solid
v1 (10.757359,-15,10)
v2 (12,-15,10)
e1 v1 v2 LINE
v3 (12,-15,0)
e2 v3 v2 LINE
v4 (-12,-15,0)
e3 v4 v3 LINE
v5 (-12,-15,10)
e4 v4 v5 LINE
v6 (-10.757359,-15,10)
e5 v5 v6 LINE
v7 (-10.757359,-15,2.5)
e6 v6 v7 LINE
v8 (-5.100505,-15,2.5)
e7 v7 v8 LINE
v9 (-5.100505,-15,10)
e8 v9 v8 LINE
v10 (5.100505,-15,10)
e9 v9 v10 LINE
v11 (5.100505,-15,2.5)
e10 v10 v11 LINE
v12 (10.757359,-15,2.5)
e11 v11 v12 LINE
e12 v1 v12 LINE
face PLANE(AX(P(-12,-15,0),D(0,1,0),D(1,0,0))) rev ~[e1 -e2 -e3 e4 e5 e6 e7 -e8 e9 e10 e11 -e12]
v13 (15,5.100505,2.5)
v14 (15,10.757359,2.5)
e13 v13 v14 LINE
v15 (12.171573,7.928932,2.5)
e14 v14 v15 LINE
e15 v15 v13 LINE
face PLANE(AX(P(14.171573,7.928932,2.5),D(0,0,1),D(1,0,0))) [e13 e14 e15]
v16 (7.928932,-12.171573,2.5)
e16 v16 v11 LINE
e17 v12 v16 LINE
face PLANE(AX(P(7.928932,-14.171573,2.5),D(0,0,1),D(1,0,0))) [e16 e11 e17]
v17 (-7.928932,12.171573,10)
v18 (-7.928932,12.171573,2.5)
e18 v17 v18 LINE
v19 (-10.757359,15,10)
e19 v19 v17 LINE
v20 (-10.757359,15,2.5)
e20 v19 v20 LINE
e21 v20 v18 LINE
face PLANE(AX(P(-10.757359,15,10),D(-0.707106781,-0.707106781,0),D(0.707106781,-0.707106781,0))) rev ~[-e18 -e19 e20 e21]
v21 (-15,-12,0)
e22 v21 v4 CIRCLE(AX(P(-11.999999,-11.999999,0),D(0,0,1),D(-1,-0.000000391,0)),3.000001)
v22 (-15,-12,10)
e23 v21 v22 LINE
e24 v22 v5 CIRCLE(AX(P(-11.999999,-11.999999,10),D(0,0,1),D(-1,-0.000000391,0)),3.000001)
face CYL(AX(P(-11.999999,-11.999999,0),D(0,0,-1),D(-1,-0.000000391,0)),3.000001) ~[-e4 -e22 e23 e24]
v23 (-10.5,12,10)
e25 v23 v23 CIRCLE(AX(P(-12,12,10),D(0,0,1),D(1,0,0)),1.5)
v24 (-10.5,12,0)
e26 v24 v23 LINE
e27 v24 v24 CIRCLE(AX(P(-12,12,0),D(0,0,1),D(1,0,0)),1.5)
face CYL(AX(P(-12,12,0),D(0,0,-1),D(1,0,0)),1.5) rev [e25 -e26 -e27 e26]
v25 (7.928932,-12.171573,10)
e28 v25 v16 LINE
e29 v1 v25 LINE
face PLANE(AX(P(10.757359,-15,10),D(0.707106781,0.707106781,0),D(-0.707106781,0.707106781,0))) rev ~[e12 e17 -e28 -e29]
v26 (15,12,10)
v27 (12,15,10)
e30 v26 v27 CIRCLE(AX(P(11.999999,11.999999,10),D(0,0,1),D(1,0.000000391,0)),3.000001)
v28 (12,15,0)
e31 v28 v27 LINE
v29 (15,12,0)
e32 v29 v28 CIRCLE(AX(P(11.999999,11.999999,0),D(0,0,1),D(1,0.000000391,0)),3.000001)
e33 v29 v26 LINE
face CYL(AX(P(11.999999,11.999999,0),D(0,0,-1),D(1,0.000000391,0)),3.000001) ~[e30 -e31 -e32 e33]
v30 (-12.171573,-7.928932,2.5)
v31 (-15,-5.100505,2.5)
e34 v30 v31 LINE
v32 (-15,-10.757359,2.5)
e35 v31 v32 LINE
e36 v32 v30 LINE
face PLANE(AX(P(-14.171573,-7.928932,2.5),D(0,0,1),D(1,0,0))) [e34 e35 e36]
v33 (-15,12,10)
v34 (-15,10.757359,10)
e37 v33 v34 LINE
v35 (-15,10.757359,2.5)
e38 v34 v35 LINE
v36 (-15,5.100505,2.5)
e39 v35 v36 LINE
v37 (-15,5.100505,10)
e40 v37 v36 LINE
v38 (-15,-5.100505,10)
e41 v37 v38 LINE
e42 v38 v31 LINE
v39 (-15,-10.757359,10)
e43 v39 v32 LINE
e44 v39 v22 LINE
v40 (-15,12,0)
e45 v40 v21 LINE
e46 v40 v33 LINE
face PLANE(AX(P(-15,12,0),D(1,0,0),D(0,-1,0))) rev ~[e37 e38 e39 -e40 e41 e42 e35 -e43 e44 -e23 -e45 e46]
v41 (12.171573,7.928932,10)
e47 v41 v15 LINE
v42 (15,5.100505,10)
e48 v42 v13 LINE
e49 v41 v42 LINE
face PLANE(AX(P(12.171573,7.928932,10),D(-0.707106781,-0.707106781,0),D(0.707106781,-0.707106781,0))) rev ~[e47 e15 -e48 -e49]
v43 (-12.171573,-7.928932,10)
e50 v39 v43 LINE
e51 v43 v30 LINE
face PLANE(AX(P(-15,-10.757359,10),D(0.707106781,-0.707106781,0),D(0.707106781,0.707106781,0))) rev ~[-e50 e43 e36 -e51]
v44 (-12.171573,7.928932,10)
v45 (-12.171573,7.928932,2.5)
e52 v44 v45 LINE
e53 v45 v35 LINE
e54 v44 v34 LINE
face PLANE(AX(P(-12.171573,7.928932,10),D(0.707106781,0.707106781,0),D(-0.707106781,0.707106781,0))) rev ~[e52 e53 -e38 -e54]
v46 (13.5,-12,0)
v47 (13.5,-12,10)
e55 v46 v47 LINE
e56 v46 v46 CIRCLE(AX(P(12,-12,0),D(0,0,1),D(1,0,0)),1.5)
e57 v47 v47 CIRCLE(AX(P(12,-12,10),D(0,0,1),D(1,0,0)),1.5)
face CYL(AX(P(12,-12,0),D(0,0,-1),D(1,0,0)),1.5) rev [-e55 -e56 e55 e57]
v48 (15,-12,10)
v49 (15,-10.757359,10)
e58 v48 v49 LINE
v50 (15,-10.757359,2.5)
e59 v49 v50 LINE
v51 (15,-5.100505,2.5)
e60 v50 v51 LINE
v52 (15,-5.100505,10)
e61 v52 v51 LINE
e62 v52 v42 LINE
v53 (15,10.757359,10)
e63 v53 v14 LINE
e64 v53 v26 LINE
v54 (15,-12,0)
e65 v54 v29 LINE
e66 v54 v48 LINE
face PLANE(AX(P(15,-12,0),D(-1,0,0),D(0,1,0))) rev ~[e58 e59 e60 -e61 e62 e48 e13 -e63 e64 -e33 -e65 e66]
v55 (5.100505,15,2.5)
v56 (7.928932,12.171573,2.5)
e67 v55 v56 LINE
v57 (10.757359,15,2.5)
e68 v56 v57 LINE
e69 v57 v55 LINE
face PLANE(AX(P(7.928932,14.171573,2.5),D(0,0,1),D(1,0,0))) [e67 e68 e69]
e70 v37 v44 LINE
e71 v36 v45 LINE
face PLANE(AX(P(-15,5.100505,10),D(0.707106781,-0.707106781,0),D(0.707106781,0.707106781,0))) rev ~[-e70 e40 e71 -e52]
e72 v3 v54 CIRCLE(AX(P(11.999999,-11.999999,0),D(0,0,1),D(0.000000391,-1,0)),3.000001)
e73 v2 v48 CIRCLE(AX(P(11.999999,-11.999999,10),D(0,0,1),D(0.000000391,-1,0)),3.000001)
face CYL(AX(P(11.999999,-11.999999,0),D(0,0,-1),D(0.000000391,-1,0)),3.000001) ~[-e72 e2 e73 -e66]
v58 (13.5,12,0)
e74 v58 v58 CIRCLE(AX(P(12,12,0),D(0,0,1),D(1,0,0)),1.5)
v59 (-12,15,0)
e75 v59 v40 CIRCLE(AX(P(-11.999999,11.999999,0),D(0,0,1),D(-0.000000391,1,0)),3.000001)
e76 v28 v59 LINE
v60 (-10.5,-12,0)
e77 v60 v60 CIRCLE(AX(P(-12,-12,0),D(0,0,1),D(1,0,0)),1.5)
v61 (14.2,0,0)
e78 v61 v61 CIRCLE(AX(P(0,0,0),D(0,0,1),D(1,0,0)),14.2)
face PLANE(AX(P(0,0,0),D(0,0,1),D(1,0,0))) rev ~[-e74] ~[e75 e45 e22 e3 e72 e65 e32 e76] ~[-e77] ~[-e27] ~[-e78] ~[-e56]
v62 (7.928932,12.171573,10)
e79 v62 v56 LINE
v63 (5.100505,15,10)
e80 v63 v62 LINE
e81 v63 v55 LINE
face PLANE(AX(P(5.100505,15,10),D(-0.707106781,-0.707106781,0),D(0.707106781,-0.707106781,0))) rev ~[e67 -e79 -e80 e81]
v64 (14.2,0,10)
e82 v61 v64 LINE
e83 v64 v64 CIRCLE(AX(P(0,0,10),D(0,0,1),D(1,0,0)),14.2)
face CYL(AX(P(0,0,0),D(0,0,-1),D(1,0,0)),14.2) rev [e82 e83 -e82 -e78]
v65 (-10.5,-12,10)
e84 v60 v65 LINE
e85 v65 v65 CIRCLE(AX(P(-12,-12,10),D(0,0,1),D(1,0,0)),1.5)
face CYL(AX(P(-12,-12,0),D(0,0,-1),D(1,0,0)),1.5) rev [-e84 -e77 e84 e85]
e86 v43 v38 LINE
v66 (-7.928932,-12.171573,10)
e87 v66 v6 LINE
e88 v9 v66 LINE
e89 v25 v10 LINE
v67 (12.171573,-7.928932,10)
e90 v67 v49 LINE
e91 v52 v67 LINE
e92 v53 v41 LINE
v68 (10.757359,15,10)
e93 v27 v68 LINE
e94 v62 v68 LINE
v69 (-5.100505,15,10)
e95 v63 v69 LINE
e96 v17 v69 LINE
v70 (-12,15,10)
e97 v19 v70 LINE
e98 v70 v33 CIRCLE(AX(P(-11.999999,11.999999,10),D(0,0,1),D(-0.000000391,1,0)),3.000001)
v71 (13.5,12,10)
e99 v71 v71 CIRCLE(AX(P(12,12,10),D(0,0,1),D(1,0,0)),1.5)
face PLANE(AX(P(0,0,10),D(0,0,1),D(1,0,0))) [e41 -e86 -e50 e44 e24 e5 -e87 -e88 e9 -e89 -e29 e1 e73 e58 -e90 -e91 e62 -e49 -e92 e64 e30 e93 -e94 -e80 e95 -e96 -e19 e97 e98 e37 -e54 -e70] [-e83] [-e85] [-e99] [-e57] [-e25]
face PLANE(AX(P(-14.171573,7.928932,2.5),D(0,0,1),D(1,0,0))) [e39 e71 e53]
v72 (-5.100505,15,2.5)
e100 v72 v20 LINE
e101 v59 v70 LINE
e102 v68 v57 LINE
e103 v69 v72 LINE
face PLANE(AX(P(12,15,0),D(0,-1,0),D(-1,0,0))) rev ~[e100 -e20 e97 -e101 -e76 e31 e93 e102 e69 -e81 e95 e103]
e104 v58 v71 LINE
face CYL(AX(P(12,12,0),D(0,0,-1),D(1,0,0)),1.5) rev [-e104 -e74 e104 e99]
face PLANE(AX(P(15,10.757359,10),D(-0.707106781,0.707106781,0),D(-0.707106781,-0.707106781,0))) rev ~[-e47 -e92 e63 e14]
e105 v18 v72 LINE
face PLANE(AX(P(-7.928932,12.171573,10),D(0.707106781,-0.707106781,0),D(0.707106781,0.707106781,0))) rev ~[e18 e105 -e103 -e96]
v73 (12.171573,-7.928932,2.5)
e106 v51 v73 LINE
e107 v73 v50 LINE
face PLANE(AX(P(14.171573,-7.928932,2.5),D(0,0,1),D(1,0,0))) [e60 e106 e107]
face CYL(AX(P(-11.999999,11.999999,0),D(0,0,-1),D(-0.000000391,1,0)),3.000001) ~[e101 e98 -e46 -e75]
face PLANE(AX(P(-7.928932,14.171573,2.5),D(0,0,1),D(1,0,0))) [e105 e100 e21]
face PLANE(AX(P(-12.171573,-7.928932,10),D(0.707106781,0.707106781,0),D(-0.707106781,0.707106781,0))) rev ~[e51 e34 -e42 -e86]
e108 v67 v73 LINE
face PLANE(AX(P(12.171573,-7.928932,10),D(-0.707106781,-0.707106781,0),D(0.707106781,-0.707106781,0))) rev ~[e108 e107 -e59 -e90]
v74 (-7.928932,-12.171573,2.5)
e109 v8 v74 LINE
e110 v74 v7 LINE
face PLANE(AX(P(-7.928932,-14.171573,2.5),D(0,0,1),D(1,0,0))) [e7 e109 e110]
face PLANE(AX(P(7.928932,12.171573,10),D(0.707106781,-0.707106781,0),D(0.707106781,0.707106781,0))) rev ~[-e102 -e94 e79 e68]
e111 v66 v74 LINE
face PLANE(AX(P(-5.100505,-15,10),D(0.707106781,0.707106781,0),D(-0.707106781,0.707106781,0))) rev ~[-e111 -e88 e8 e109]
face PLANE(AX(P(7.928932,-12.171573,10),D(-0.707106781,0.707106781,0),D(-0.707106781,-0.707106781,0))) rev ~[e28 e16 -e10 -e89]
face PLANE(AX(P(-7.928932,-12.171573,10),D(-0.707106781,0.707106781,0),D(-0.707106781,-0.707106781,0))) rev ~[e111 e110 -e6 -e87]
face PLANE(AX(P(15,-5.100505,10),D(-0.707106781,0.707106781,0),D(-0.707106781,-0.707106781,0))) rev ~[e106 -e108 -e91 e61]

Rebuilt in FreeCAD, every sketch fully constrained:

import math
import FreeCAD as App
import Part
import Sketcher

V = App.Vector
Q = App.Units.Quantity

doc = App.newDocument("Part")
body = doc.addObject("PartDesign::Body", "Body")

sketch1 = body.newObject("Sketcher::SketchObject", "Sketch")
sketch1.AttachmentSupport = (doc.getObject("XY_Plane"), [""])
sketch1.MapMode = "FlatFace"
sketch1.addGeometry(Part.LineSegment(V(12, 15, 0), V(-12, 15, 0)), False)
sketch1.addGeometry(Part.ArcOfCircle(Part.Circle(V(-12, 12, 0), V(0, 0, 1), 3), math.radians(90), math.radians(180)), False)
sketch1.addGeometry(Part.LineSegment(V(-15, 12, 0), V(-15, -12, 0)), False)
sketch1.addGeometry(Part.ArcOfCircle(Part.Circle(V(-12, -12, 0), V(0, 0, 1), 3), math.radians(-180), math.radians(-90)), False)
sketch1.addGeometry(Part.LineSegment(V(-12, -15, 0), V(12, -15, 0)), False)
sketch1.addGeometry(Part.ArcOfCircle(Part.Circle(V(12, -12, 0), V(0, 0, 1), 3), math.radians(-90), math.radians(0)), False)
sketch1.addGeometry(Part.LineSegment(V(15, -12, 0), V(15, 12, 0)), False)
sketch1.addGeometry(Part.ArcOfCircle(Part.Circle(V(12, 12, 0), V(0, 0, 1), 3), math.radians(0), math.radians(90)), False)
sketch1.addGeometry(Part.Circle(V(-12, -12, 0), V(0, 0, 1), 1.5), False)
sketch1.addGeometry(Part.Circle(V(12, -12, 0), V(0, 0, 1), 1.5), False)
sketch1.addGeometry(Part.Circle(V(-12, 12, 0), V(0, 0, 1), 1.5), False)
sketch1.addGeometry(Part.Circle(V(0, 0, 0), V(0, 0, 1), 14.2), False)
sketch1.addGeometry(Part.Circle(V(12, 12, 0), V(0, 0, 1), 1.5), False)
sketch1.addConstraint(Sketcher.Constraint("Tangent", 0, 2, 1, 1))
sketch1.addConstraint(Sketcher.Constraint("Tangent", 1, 2, 2, 1))
sketch1.addConstraint(Sketcher.Constraint("Tangent", 2, 2, 3, 1))
sketch1.addConstraint(Sketcher.Constraint("Tangent", 3, 2, 4, 1))
sketch1.addConstraint(Sketcher.Constraint("Tangent", 4, 2, 5, 1))
sketch1.addConstraint(Sketcher.Constraint("Tangent", 5, 2, 6, 1))
sketch1.addConstraint(Sketcher.Constraint("Tangent", 6, 2, 7, 1))
sketch1.addConstraint(Sketcher.Constraint("Tangent", 7, 2, 0, 1))
sketch1.addConstraint(Sketcher.Constraint("Horizontal", 0))
sketch1.addConstraint(Sketcher.Constraint("Vertical", 2))
sketch1.addConstraint(Sketcher.Constraint("Horizontal", 4))
sketch1.addConstraint(Sketcher.Constraint("Vertical", 6))
sketch1.addConstraint(Sketcher.Constraint("Coincident", 11, 3, -1, 1))
sketch1.addConstraint(Sketcher.Constraint("Coincident", 8, 3, 3, 3))
sketch1.addConstraint(Sketcher.Constraint("Coincident", 9, 3, 5, 3))
sketch1.addConstraint(Sketcher.Constraint("Coincident", 10, 3, 1, 3))
sketch1.addConstraint(Sketcher.Constraint("Coincident", 12, 3, 7, 3))
sketch1.addConstraint(Sketcher.Constraint("Equal", 1, 3))
sketch1.addConstraint(Sketcher.Constraint("Equal", 3, 5))
sketch1.addConstraint(Sketcher.Constraint("Equal", 5, 7))
sketch1.addConstraint(Sketcher.Constraint("Equal", 8, 9))
sketch1.addConstraint(Sketcher.Constraint("Equal", 9, 10))
sketch1.addConstraint(Sketcher.Constraint("Equal", 10, 12))
sketch1.addConstraint(Sketcher.Constraint("Symmetric", 1, 3, 5, 3, -1, 1))
sketch1.addConstraint(Sketcher.Constraint("Equal", 4, 2))
sketch1.addConstraint(Sketcher.Constraint("Diameter", 8, Q("3 mm")))
sketch1.addConstraint(Sketcher.Constraint("Radius", 1, Q("3.000001 mm")))
sketch1.addConstraint(Sketcher.Constraint("Diameter", 11, Q("28.4 mm")))
sketch1.addConstraint(Sketcher.Constraint("DistanceX", 0, 2, 0, 1, Q("24 mm")))
pad1 = body.newObject("PartDesign::Pad", "Pad")
pad1.Profile = sketch1
pad1.Length = 10

sketch2 = body.newObject("Sketcher::SketchObject", "Sketch001")
sketch2.AttachmentSupport = (doc.getObject("XY_Plane"), [""])
sketch2.MapMode = "FlatFace"
sketch2.AttachmentOffset = App.Placement(V(0, 0, 10), App.Rotation())
sketch2.addGeometry(Part.LineSegment(V(-5.1, 15, 0), V(-10.8, 15, 0)), False)
sketch2.addGeometry(Part.LineSegment(V(-10.8, 15, 0), V(-7.9, 12.2, 0)), False)
sketch2.addGeometry(Part.LineSegment(V(-7.9, 12.2, 0), V(-5.1, 15, 0)), False)
sketch2.addGeometry(Part.LineSegment(V(-15, 5.1, 0), V(-12.2, 7.9, 0)), False)
sketch2.addGeometry(Part.LineSegment(V(-12.2, 7.9, 0), V(-15, 10.8, 0)), False)
sketch2.addGeometry(Part.LineSegment(V(-15, 10.8, 0), V(-15, 5.1, 0)), False)
sketch2.addGeometry(Part.LineSegment(V(-12.2, -7.9, 0), V(-15, -5.1, 0)), False)
sketch2.addGeometry(Part.LineSegment(V(-15, -5.1, 0), V(-15, -10.8, 0)), False)
sketch2.addGeometry(Part.LineSegment(V(-15, -10.8, 0), V(-12.2, -7.9, 0)), False)
sketch2.addGeometry(Part.LineSegment(V(-7.9, -12.2, 0), V(-10.8, -15, 0)), False)
sketch2.addGeometry(Part.LineSegment(V(-10.8, -15, 0), V(-5.1, -15, 0)), False)
sketch2.addGeometry(Part.LineSegment(V(-5.1, -15, 0), V(-7.9, -12.2, 0)), False)
sketch2.addGeometry(Part.LineSegment(V(7.9, -12.2, 0), V(5.1, -15, 0)), False)
sketch2.addGeometry(Part.LineSegment(V(5.1, -15, 0), V(10.8, -15, 0)), False)
sketch2.addGeometry(Part.LineSegment(V(10.8, -15, 0), V(7.9, -12.2, 0)), False)
sketch2.addGeometry(Part.LineSegment(V(12.2, -7.9, 0), V(15, -10.8, 0)), False)
sketch2.addGeometry(Part.LineSegment(V(15, -10.8, 0), V(15, -5.1, 0)), False)
sketch2.addGeometry(Part.LineSegment(V(15, -5.1, 0), V(12.2, -7.9, 0)), False)
sketch2.addGeometry(Part.LineSegment(V(12.2, 7.9, 0), V(15, 5.1, 0)), False)
sketch2.addGeometry(Part.LineSegment(V(15, 5.1, 0), V(15, 10.8, 0)), False)
sketch2.addGeometry(Part.LineSegment(V(15, 10.8, 0), V(12.2, 7.9, 0)), False)
sketch2.addGeometry(Part.LineSegment(V(7.9, 12.2, 0), V(10.8, 15, 0)), False)
sketch2.addGeometry(Part.LineSegment(V(10.8, 15, 0), V(5.1, 15, 0)), False)
sketch2.addGeometry(Part.LineSegment(V(5.1, 15, 0), V(7.9, 12.2, 0)), False)
sketch2.addConstraint(Sketcher.Constraint("Coincident", 0, 2, 1, 1))
sketch2.addConstraint(Sketcher.Constraint("Coincident", 1, 2, 2, 1))
sketch2.addConstraint(Sketcher.Constraint("Coincident", 2, 2, 0, 1))
sketch2.addConstraint(Sketcher.Constraint("Coincident", 3, 2, 4, 1))
sketch2.addConstraint(Sketcher.Constraint("Coincident", 4, 2, 5, 1))
sketch2.addConstraint(Sketcher.Constraint("Coincident", 5, 2, 3, 1))
sketch2.addConstraint(Sketcher.Constraint("Coincident", 6, 2, 7, 1))
sketch2.addConstraint(Sketcher.Constraint("Coincident", 7, 2, 8, 1))
sketch2.addConstraint(Sketcher.Constraint("Coincident", 8, 2, 6, 1))
sketch2.addConstraint(Sketcher.Constraint("Coincident", 9, 2, 10, 1))
sketch2.addConstraint(Sketcher.Constraint("Coincident", 10, 2, 11, 1))
sketch2.addConstraint(Sketcher.Constraint("Coincident", 11, 2, 9, 1))
sketch2.addConstraint(Sketcher.Constraint("Coincident", 12, 2, 13, 1))
sketch2.addConstraint(Sketcher.Constraint("Coincident", 13, 2, 14, 1))
sketch2.addConstraint(Sketcher.Constraint("Coincident", 14, 2, 12, 1))
sketch2.addConstraint(Sketcher.Constraint("Coincident", 15, 2, 16, 1))
sketch2.addConstraint(Sketcher.Constraint("Coincident", 16, 2, 17, 1))
sketch2.addConstraint(Sketcher.Constraint("Coincident", 17, 2, 15, 1))
sketch2.addConstraint(Sketcher.Constraint("Coincident", 18, 2, 19, 1))
sketch2.addConstraint(Sketcher.Constraint("Coincident", 19, 2, 20, 1))
sketch2.addConstraint(Sketcher.Constraint("Coincident", 20, 2, 18, 1))
sketch2.addConstraint(Sketcher.Constraint("Coincident", 21, 2, 22, 1))
sketch2.addConstraint(Sketcher.Constraint("Coincident", 22, 2, 23, 1))
sketch2.addConstraint(Sketcher.Constraint("Coincident", 23, 2, 21, 1))
sketch2.addConstraint(Sketcher.Constraint("Horizontal", 0))
sketch2.addConstraint(Sketcher.Constraint("Vertical", 5))
sketch2.addConstraint(Sketcher.Constraint("Vertical", 7))
sketch2.addConstraint(Sketcher.Constraint("Horizontal", 10))
sketch2.addConstraint(Sketcher.Constraint("Horizontal", 13))
sketch2.addConstraint(Sketcher.Constraint("Vertical", 16))
sketch2.addConstraint(Sketcher.Constraint("Vertical", 19))
sketch2.addConstraint(Sketcher.Constraint("Horizontal", 22))
sketch2.addConstraint(Sketcher.Constraint("Symmetric", 2, 2, 12, 2, -1, 1))
sketch2.addConstraint(Sketcher.Constraint("Symmetric", 1, 2, 14, 2, -1, 1))
sketch2.addConstraint(Sketcher.Constraint("Symmetric", 4, 2, 15, 2, -1, 1))
sketch2.addConstraint(Sketcher.Constraint("Symmetric", 3, 2, 17, 2, -1, 1))
sketch2.addConstraint(Sketcher.Constraint("Symmetric", 6, 2, 18, 2, -1, 1))
sketch2.addConstraint(Sketcher.Constraint("Symmetric", 8, 2, 20, 2, -1, 1))
sketch2.addConstraint(Sketcher.Constraint("Symmetric", 9, 2, 21, 2, -1, 1))
sketch2.addConstraint(Sketcher.Constraint("Symmetric", 11, 2, 23, 2, -1, 1))
sketch2.addConstraint(Sketcher.Constraint("Symmetric", 10, 2, 12, 2, -2))
sketch2.addConstraint(Sketcher.Constraint("Symmetric", 11, 2, 14, 2, -2))
sketch2.addConstraint(Sketcher.Constraint("Symmetric", 7, 2, 15, 2, -2))
sketch2.addConstraint(Sketcher.Constraint("Symmetric", 8, 2, 17, 2, -2))
sketch2.addConstraint(Sketcher.Constraint("Perpendicular", 1, 2))
sketch2.addConstraint(Sketcher.Constraint("Parallel", 2, 3))
sketch2.addConstraint(Sketcher.Constraint("Perpendicular", 3, 4))
sketch2.addConstraint(Sketcher.Constraint("Parallel", 4, 6))
sketch2.addConstraint(Sketcher.Constraint("Perpendicular", 6, 8))
sketch2.addConstraint(Sketcher.Constraint("Parallel", 8, 9))
sketch2.addConstraint(Sketcher.Constraint("Perpendicular", 12, 14))
sketch2.addConstraint(Sketcher.Constraint("Perpendicular", 15, 17))
sketch2.addConstraint(Sketcher.Constraint("Perpendicular", 18, 20))
sketch2.addConstraint(Sketcher.Constraint("Perpendicular", 21, 23))
sketch2.addConstraint(Sketcher.Constraint("Equal", 22, 5))
sketch2.addConstraint(Sketcher.Constraint("Distance", 1, Q("4 mm")))
sketch2.addConstraint(Sketcher.Constraint("DistanceY", -1, 1, 0, 2, Q("15 mm")))
sketch2.addConstraint(Sketcher.Constraint("DistanceX", 4, 2, -1, 1, Q("15 mm")))
sketch2.addConstraint(Sketcher.Constraint("DistanceX", 0, 2, -1, 1, Q("10.757359 mm")))
sketch2.addConstraint(Sketcher.Constraint("DistanceY", -1, 1, 3, 2, Q("7.928932 mm")))
pocket1 = body.newObject("PartDesign::Pocket", "Pocket")
pocket1.Profile = sketch2
pocket1.Length = 7.5

doc.recompute()
